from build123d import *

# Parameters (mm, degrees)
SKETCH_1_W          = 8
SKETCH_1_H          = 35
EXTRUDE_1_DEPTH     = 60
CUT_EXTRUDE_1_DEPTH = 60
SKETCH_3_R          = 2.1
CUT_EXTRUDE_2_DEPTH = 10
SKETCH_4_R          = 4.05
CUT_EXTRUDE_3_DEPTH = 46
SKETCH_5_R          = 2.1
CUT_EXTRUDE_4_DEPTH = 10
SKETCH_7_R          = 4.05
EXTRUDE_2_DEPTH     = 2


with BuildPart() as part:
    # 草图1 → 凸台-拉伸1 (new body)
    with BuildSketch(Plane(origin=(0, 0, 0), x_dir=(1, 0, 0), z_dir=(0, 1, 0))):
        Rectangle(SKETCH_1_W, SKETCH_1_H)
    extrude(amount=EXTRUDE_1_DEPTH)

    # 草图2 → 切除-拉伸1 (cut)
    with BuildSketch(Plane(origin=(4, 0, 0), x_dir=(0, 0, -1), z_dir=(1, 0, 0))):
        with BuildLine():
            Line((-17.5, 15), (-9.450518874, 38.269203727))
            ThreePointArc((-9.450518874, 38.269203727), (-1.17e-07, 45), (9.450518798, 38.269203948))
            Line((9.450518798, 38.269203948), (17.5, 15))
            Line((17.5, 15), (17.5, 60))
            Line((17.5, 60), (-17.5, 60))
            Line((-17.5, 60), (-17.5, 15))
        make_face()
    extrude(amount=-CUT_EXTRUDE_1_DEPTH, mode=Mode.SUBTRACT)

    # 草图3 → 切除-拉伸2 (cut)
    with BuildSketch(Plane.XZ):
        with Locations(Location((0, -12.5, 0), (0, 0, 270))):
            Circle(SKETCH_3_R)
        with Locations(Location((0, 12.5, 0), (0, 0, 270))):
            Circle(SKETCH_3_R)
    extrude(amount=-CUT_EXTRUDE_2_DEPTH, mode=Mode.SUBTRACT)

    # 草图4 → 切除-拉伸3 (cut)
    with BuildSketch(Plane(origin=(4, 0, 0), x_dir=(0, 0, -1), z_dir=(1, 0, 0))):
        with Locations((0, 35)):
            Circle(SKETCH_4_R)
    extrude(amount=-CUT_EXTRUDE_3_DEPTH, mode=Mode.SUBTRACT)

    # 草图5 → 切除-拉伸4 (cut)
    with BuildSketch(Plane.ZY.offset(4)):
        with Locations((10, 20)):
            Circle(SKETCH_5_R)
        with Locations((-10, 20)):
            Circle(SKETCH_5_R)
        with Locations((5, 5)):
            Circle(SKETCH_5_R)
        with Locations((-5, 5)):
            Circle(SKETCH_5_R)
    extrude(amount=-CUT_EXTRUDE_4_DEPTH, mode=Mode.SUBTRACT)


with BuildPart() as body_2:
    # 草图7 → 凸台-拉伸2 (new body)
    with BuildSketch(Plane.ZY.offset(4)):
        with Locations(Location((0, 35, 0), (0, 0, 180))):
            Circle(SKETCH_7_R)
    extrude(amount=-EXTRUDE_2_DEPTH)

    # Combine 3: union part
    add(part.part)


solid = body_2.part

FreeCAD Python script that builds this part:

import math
import FreeCAD as App
import Part
import Sketcher


def add_polygon(sketch, points):
    """Adds a closed chain of lines whose ends are joined by coincident constraints."""
    first, n = sketch.GeometryCount, len(points)
    for a, b in zip(points, points[1:] + points[:1]):
        sketch.addGeometry(Part.LineSegment(App.Vector(*a, 0), App.Vector(*b, 0)), False)
    for i in range(n):
        sketch.addConstraint(Sketcher.Constraint("Coincident", first + i, 2, first + (i + 1) % n, 1))

doc = App.newDocument("Part")
body = doc.addObject("PartDesign::Body", "Body")

# Sketch on XZ plane
sketch1 = body.newObject("Sketcher::SketchObject", "Sketch")
sketch1.AttachmentSupport = (doc.getObject("XZ_Plane"), [""])
sketch1.MapMode = "FlatFace"
add_polygon(sketch1, [(-4, -17.5), (-4, 17.5), (4, 17.5), (4, -17.5)])  # lines 0-3
sketch1.addConstraint([
    Sketcher.Constraint("Vertical", 0),
    Sketcher.Constraint("Horizontal", 1),
    Sketcher.Constraint("Vertical", 2),
    Sketcher.Constraint("Horizontal", 3),
    Sketcher.Constraint("Symmetric", 0, 2, 2, 2, -1, 1),
    Sketcher.Constraint("DistanceX", 1, 1, 1, 2, 8.0),
    Sketcher.Constraint("DistanceY", 0, 1, 0, 2, 35.0),
])
pad1 = body.newObject("PartDesign::Pad", "Pad")
pad1.Profile = sketch1
pad1.Length = 60
pad1.Reversed = True

# Sketch on YZ plane
sketch2 = body.newObject("Sketcher::SketchObject", "Sketch001")
sketch2.AttachmentSupport = (doc.getObject("YZ_Plane"), [""])
sketch2.MapMode = "FlatFace"
sketch2.AttachmentOffset = App.Placement(App.Vector(0, 0, 4), App.Rotation())
sketch2.addGeometry([
    Part.LineSegment(App.Vector(15, 17.5, 0), App.Vector(38.269204, 9.450519, 0)),  # 0
    Part.ArcOfCircle(Part.Circle(App.Vector(35, 0, 0), App.Vector(0, 0, 1), 10), math.radians(-70.918038), math.radians(70.918039)),  # 1
    Part.LineSegment(App.Vector(38.269204, -9.450519, 0), App.Vector(15, -17.5, 0)),  # 2
    Part.LineSegment(App.Vector(15, -17.5, 0), App.Vector(60, -17.5, 0)),  # 3
    Part.LineSegment(App.Vector(60, -17.5, 0), App.Vector(60, 17.5, 0)),  # 4
    Part.LineSegment(App.Vector(60, 17.5, 0), App.Vector(15, 17.5, 0)),  # 5
], False)
sketch2.addConstraint([
    Sketcher.Constraint("Tangent", 0, 2, 1, 2),
    Sketcher.Constraint("Tangent", 1, 1, 2, 1),
    Sketcher.Constraint("Coincident", 2, 2, 3, 1),
    Sketcher.Constraint("Coincident", 3, 2, 4, 1),
    Sketcher.Constraint("Coincident", 4, 2, 5, 1),
    Sketcher.Constraint("Coincident", 5, 2, 0, 1),
    Sketcher.Constraint("Horizontal", 3),
    Sketcher.Constraint("Vertical", 4),
    Sketcher.Constraint("Horizontal", 5),
    Sketcher.Constraint("Symmetric", 0, 2, 1, 1, -1),
    Sketcher.Constraint("Vertical", 2, 2, 5, 2),
    Sketcher.Constraint("Radius", 1, 10.0),
    Sketcher.Constraint("DistanceX", 3, 1, 3, 2, 45.0),
    Sketcher.Constraint("DistanceY", 4, 1, 4, 2, 35.0),
    Sketcher.Constraint("DistanceX", -1, 1, 1, 3, 35.0),
    Sketcher.Constraint("DistanceX", -1, 1, 2, 2, 15.0),
])
pocket1 = body.newObject("PartDesign::Pocket", "Pocket")
pocket1.Profile = sketch2
pocket1.Length = 60

# Sketch on XZ plane
sketch3 = body.newObject("Sketcher::SketchObject", "Sketch002")
sketch3.AttachmentSupport = (doc.getObject("XZ_Plane"), [""])
sketch3.MapMode = "FlatFace"
sketch3.addGeometry([
    Part.Circle(App.Vector(0, -12.5, 0), App.Vector(0, 0, 1), 2.1),
    Part.Circle(App.Vector(0, 12.5, 0), App.Vector(0, 0, 1), 2.1),
], False)
sketch3.addConstraint([
    Sketcher.Constraint("Equal", 0, 1),
    Sketcher.Constraint("Symmetric", 0, 3, 1, 3, -1, 1),
    Sketcher.Constraint("PointOnObject", 0, 3, -2),
    Sketcher.Constraint("Diameter", 0, 4.2),
    Sketcher.Constraint("DistanceY", 0, 3, 1, 3, 25.0),
])
pocket2 = body.newObject("PartDesign::Pocket", "Pocket001")
pocket2.Profile = sketch3
pocket2.Length = 10

# Sketch on YZ plane
sketch4 = body.newObject("Sketcher::SketchObject", "Sketch003")
sketch4.AttachmentSupport = (doc.getObject("YZ_Plane"), [""])
sketch4.MapMode = "FlatFace"
sketch4.AttachmentOffset = App.Placement(App.Vector(0, 0, 4), App.Rotation())
sketch4.addGeometry(Part.Circle(App.Vector(35, 0, 0), App.Vector(0, 0, 1), 4.05), False)
sketch4.addConstraint([
    Sketcher.Constraint("PointOnObject", 0, 3, -1),
    Sketcher.Constraint("Diameter", 0, 8.1),
    Sketcher.Constraint("DistanceX", -1, 1, 0, 3, 35.0),
])
pocket3 = body.newObject("PartDesign::Pocket", "Pocket002")
pocket3.Profile = sketch4
pocket3.Length = 46

# Sketch on YZ plane
sketch5 = body.newObject("Sketcher::SketchObject", "Sketch004")
sketch5.AttachmentSupport = (doc.getObject("YZ_Plane"), [""])
sketch5.MapMode = "FlatFace"
sketch5.AttachmentOffset = App.Placement(App.Vector(0, 0, -4), App.Rotation())
sketch5.addGeometry([
    Part.Circle(App.Vector(20, 10, 0), App.Vector(0, 0, 1), 2.1),
    Part.Circle(App.Vector(20, -10, 0), App.Vector(0, 0, 1), 2.1),
    Part.Circle(App.Vector(5, 5, 0), App.Vector(0, 0, 1), 2.1),
    Part.Circle(App.Vector(5, -5, 0), App.Vector(0, 0, 1), 2.1),
], False)
sketch5.addConstraint([
    Sketcher.Constraint("Equal", 0, 1),
    Sketcher.Constraint("Equal", 1, 2),
    Sketcher.Constraint("Equal", 2, 3),
    Sketcher.Constraint("Symmetric", 0, 3, 1, 3, -1),
    Sketcher.Constraint("Symmetric", 2, 3, 3, 3, -1),
    Sketcher.Constraint("Diameter", 0, 4.2),
    Sketcher.Constraint("DistanceX", -1, 1, 0, 3, 20.0),
    Sketcher.Constraint("DistanceY", -1, 1, 0, 3, 10.0),
    Sketcher.Constraint("DistanceX", -1, 1, 2, 3, 5.0),
    Sketcher.Constraint("DistanceY", -1, 1, 2, 3, 5.0),
])
pocket4 = body.newObject("PartDesign::Pocket", "Pocket003")
pocket4.Profile = sketch5
pocket4.Length = 10
pocket4.Reversed = True
body2 = doc.addObject("PartDesign::Body", "Body001")

# Sketch on YZ plane
sketch6 = body2.newObject("Sketcher::SketchObject", "Sketch005")
sketch6.AttachmentSupport = (doc.getObject("YZ_Plane001"), [""])
sketch6.MapMode = "FlatFace"
sketch6.AttachmentOffset = App.Placement(App.Vector(0, 0, -4), App.Rotation())
sketch6.addGeometry(Part.Circle(App.Vector(35, 0, 0), App.Vector(0, 0, 1), 4.05), False)
sketch6.addConstraint([
    Sketcher.Constraint("PointOnObject", 0, 3, -1),
    Sketcher.Constraint("Diameter", 0, 8.1),
    Sketcher.Constraint("DistanceX", -1, 1, 0, 3, 35.0),
])
pad2 = body2.newObject("PartDesign::Pad", "Pad001")
pad2.Profile = sketch6
pad2.Length = 2
doc.recompute()

boolean = body2.newObject("PartDesign::Boolean", "Boolean")
boolean.Type = "Fuse"
boolean.addObjects([body])

doc.recompute()
